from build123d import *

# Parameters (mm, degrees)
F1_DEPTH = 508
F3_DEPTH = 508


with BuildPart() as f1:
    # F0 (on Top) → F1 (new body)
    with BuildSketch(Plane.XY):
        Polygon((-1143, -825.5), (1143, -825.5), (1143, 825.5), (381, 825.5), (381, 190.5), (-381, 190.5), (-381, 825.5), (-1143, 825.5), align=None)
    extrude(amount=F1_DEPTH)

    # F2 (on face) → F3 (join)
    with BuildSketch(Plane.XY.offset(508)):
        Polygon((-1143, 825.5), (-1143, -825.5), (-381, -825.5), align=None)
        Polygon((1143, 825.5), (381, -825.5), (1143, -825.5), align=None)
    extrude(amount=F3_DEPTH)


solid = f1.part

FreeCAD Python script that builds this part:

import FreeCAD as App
import Part
import Sketcher
Q = App.Units.Quantity

doc = App.newDocument("Part")
body = doc.addObject("PartDesign::Body", "Body")

sketch1 = doc.addObject("Sketcher::SketchObject", "Sketch")
body.addObject(sketch1)
sketch1.AttachmentSupport = (doc.XY_Plane, [""])
sketch1.MapMode = "FlatFace"
sketch1.addGeometry([
    Part.LineSegment(App.Vector(-1143, -826, 0), App.Vector(1143, -826, 0)),
    Part.LineSegment(App.Vector(1143, -826, 0), App.Vector(1143, 826, 0)),
    Part.LineSegment(App.Vector(1143, 826, 0), App.Vector(381, 826, 0)),
    Part.LineSegment(App.Vector(381, 826, 0), App.Vector(381, 190, 0)),
    Part.LineSegment(App.Vector(381, 190, 0), App.Vector(-381, 190, 0)),
    Part.LineSegment(App.Vector(-381, 190, 0), App.Vector(-381, 826, 0)),
    Part.LineSegment(App.Vector(-381, 826, 0), App.Vector(-1143, 826, 0)),
    Part.LineSegment(App.Vector(-1143, 826, 0), App.Vector(-1143, -826, 0)),
], False)
sketch1.addConstraint([
    Sketcher.Constraint("Coincident", 0, 2, 1, 1),
    Sketcher.Constraint("Coincident", 1, 2, 2, 1),
    Sketcher.Constraint("Coincident", 2, 2, 3, 1),
    Sketcher.Constraint("Coincident", 3, 2, 4, 1),
    Sketcher.Constraint("Coincident", 4, 2, 5, 1),
    Sketcher.Constraint("Coincident", 5, 2, 6, 1),
    Sketcher.Constraint("Coincident", 6, 2, 7, 1),
    Sketcher.Constraint("Coincident", 7, 2, 0, 1),
    Sketcher.Constraint("Horizontal", 0),
    Sketcher.Constraint("Vertical", 1),
    Sketcher.Constraint("Horizontal", 2),
    Sketcher.Constraint("Vertical", 3),
    Sketcher.Constraint("Horizontal", 4),
    Sketcher.Constraint("Vertical", 5),
    Sketcher.Constraint("Horizontal", 6),
    Sketcher.Constraint("Vertical", 7),
    Sketcher.Constraint("Symmetric", 0, 2, 6, 2, -1, 1),
    Sketcher.Constraint("Symmetric", 2, 2, 5, 2, -2),
    Sketcher.Constraint("Equal", 2, 4),
    Sketcher.Constraint("DistanceX", 0, 1, 0, 2, Q("90 in")),
    Sketcher.Constraint("DistanceY", 1, 1, 1, 2, Q("65 in")),
    Sketcher.Constraint("DistanceY", 3, 2, 3, 1, Q("25 in")),
])
pad1 = doc.addObject("PartDesign::Pad", "Pad")
body.addObject(pad1)
pad1.Profile = sketch1
pad1.Length = Q("20 in")

sketch2 = doc.addObject("Sketcher::SketchObject", "Sketch001")
body.addObject(sketch2)
sketch2.AttachmentSupport = (doc.XY_Plane, [""])
sketch2.MapMode = "FlatFace"
sketch2.AttachmentOffset = App.Placement(App.Vector(0, 0, 20 * 25.4), App.Rotation())
sketch2.addGeometry([
    Part.LineSegment(App.Vector(-1143, 826, 0), App.Vector(-1143, -826, 0)),
    Part.LineSegment(App.Vector(-1143, -826, 0), App.Vector(-381, -826, 0)),
    Part.LineSegment(App.Vector(-381, -826, 0), App.Vector(-1143, 826, 0)),
    Part.LineSegment(App.Vector(1143, 826, 0), App.Vector(381, -826, 0)),
    Part.LineSegment(App.Vector(381, -826, 0), App.Vector(1143, -826, 0)),
    Part.LineSegment(App.Vector(1143, -826, 0), App.Vector(1143, 826, 0)),
], False)
sketch2.addConstraint([
    Sketcher.Constraint("Coincident", 0, 2, 1, 1),
    Sketcher.Constraint("Coincident", 1, 2, 2, 1),
    Sketcher.Constraint("Coincident", 2, 2, 0, 1),
    Sketcher.Constraint("Coincident", 3, 2, 4, 1),
    Sketcher.Constraint("Coincident", 4, 2, 5, 1),
    Sketcher.Constraint("Coincident", 5, 2, 3, 1),
    Sketcher.Constraint("Vertical", 0),
    Sketcher.Constraint("Horizontal", 1),
    Sketcher.Constraint("Horizontal", 4),
    Sketcher.Constraint("Vertical", 5),
    Sketcher.Constraint("Symmetric", 2, 2, 4, 2, -1, 1),
    Sketcher.Constraint("Symmetric", 1, 2, 3, 2, -2),
    Sketcher.Constraint("Horizontal", 2, 2, 5, 2),
    Sketcher.Constraint("DistanceX", 1, 1, 1, 2, Q("30 in")),
    Sketcher.Constraint("DistanceY", 0, 2, 0, 1, Q("65 in")),
    Sketcher.Constraint("DistanceX", 0, 2, -1, 1, Q("45 in")),
])
pad2 = doc.addObject("PartDesign::Pad", "Pad001")
body.addObject(pad2)
pad2.Profile = sketch2
pad2.Length = Q("20 in")

doc.recompute()
